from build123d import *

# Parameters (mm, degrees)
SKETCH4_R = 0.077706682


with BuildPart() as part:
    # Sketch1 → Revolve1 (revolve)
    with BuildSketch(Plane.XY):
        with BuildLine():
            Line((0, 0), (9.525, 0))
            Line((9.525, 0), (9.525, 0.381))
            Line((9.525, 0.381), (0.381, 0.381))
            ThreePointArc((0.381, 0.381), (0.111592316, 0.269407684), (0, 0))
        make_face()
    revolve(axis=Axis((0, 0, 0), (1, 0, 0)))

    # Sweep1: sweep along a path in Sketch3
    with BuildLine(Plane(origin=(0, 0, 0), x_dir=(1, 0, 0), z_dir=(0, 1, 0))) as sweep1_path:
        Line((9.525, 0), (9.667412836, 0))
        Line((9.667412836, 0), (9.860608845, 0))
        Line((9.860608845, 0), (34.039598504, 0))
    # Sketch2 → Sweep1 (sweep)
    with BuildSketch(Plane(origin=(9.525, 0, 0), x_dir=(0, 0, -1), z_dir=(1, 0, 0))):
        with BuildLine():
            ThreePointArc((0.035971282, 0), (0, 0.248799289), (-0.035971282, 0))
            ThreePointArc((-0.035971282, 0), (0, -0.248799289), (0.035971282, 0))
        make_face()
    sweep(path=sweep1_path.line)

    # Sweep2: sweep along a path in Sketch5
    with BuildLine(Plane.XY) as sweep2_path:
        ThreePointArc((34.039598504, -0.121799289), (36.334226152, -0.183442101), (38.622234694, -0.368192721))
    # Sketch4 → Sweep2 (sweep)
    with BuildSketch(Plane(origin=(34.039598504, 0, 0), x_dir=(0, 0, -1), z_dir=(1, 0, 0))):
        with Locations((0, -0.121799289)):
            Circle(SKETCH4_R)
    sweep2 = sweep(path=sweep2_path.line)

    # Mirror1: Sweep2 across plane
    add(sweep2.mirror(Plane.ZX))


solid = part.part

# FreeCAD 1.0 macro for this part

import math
import FreeCAD as App
import Part
import Sketcher
from FreeCAD import Vector
Q = App.Units.Quantity

doc = App.newDocument("Part")
params = doc.addObject("Spreadsheet::Sheet", "Params")
for row, (alias, value) in enumerate([
    ("sketch1_radius", "0.015 in"),
    ("sketch1_width", "0.36 in"),
    ("revolution_angle", "360 deg"),
    ("sketch2_radius", "0.005 in"),
], start=1):
    params.set(f"A{row}", alias)
    params.set(f"B{row}", "=" + value)
    params.setAlias(f"B{row}", alias)

body = doc.addObject("PartDesign::Body", "Body")

sketch1 = body.newObject("Sketcher::SketchObject", "Sketch")
sketch1.AttachmentSupport = (doc.getObject("XY_Plane"), [""])
sketch1.MapMode = "FlatFace"
sketch1.addGeometry([
    Part.LineSegment(Vector(0, 0, 0), Vector(9.525, 0, 0)),
    Part.LineSegment(Vector(9.525, 0, 0), Vector(9.525, 0.381, 0)),
    Part.LineSegment(Vector(9.525, 0.381, 0), Vector(0.381, 0.381, 0)),
    Part.ArcOfCircle(Part.Circle(Vector(0.381, 0, 0), Vector(0, 0, 1), 0.381), math.radians(90), math.radians(180)),
], False)
sketch1.addConstraint([
    Sketcher.Constraint("Coincident", 0, 2, 1, 1),
    Sketcher.Constraint("Coincident", 1, 2, 2, 1),
    Sketcher.Constraint("Tangent", 2, 2, 3, 1),
    Sketcher.Constraint("Coincident", 3, 2, 0, 1),
    Sketcher.Constraint("Horizontal", 0),
    Sketcher.Constraint("Vertical", 1),
    Sketcher.Constraint("Horizontal", 2),
    Sketcher.Constraint("Coincident", 3, 2, -1, 1),
    Sketcher.Constraint("PointOnObject", 3, 3, -1),
    Sketcher.Constraint("Radius", 3, Q("0.015 in")),
    Sketcher.Constraint("DistanceX", 2, 2, 2, 1, Q("0.36 in")),
])
sketch1.setExpression("Constraints[9]", "Params.sketch1_radius")
sketch1.setExpression("Constraints[10]", "Params.sketch1_width")
revolution = body.newObject("PartDesign::Revolution", "Revolution")
revolution.Profile = sketch1
revolution.ReferenceAxis = (sketch1, ["H_Axis"])
revolution.setExpression("Angle", "Params.revolution_angle")

sketch2 = body.newObject("Sketcher::SketchObject", "Sketch001")
sketch2.AttachmentSupport = (doc.getObject("YZ_Plane"), [""])
sketch2.MapMode = "FlatFace"
sketch2.AttachmentOffset = App.Placement(Vector(0, 0, 0.375 * 25.4), App.Rotation())
sketch2.addGeometry([
    Part.ArcOfCircle(Part.Circle(Vector(0.121799, 0, 0), Vector(0, 0, 1), 0.127), math.radians(-163.54642), math.radians(163.54642)),
    Part.ArcOfCircle(Part.Circle(Vector(-0.121799, 0, 0), Vector(0, 0, 1), 0.127), math.radians(16.45358), math.radians(343.54642)),
], False)
sketch2.addConstraint([
    Sketcher.Constraint("Coincident", 0, 1, 1, 2),
    Sketcher.Constraint("Coincident", 1, 1, 0, 2),
    Sketcher.Constraint("Equal", 0, 1),
    Sketcher.Constraint("Symmetric", 0, 3, 1, 3, -1, 1),
    Sketcher.Constraint("PointOnObject", 0, 3, -1),
    Sketcher.Constraint("Radius", 0, Q("0.005 in")),
    Sketcher.Constraint("DistanceX", -1, 1, 0, 3, Q("0.121799 mm")),
])
sketch2.setExpression("Constraints[5]", "Params.sketch2_radius")

sketch3 = body.newObject("Sketcher::SketchObject", "Sketch002")
sketch3.AttachmentSupport = (doc.getObject("XY_Plane"), [""])
sketch3.MapMode = "FlatFace"
sketch3.addGeometry(Part.LineSegment(Vector(9.525, 0, 0), Vector(34.039599, 0, 0)), False)
sketch3.addConstraint([
    Sketcher.Constraint("Horizontal", 0),
    Sketcher.Constraint("PointOnObject", 0, 1, -1),
    Sketcher.Constraint("DistanceX", -1, 1, 0, 1, Q("0.375 in")),
    Sketcher.Constraint("DistanceX", 0, 1, 0, 2, Q("24.514599 mm")),
])
doc.recompute()

additivepipe = body.newObject("PartDesign::AdditivePipe", "AdditivePipe")
additivepipe.Profile = sketch2
additivepipe.Spine = (sketch3, ["Edge1"])

sketch4 = body.newObject("Sketcher::SketchObject", "Sketch003")
sketch4.AttachmentSupport = (doc.getObject("YZ_Plane"), [""])
sketch4.MapMode = "FlatFace"
sketch4.AttachmentOffset = App.Placement(Vector(0, 0, 34.039599), App.Rotation())
sketch4.addGeometry(Part.Circle(Vector(-0.121799, 0, 0), Vector(0, 0, 1), 0.077707), False)
sketch4.addConstraint([
    Sketcher.Constraint("PointOnObject", 0, 3, -1),
    Sketcher.Constraint("Diameter", 0, Q("0.155413 mm")),
    Sketcher.Constraint("DistanceX", 0, 3, -1, 1, Q("0.121799 mm")),
])

sketch5 = body.newObject("Sketcher::SketchObject", "Sketch004")
sketch5.AttachmentSupport = (doc.getObject("XY_Plane"), [""])
sketch5.MapMode = "FlatFace"
sketch5.addGeometry(Part.ArcOfCircle(Part.Circle(Vector(34.039598, -42.860894, 0), Vector(0, 0, 1), 42.739094), math.radians(83.844712), math.radians(90)), False)
sketch5.addConstraint([
    Sketcher.Constraint("Radius", 0, Q("42.739094 mm")),
    Sketcher.Constraint("DistanceX", -1, 1, 0, 3, Q("34.039598 mm")),
    Sketcher.Constraint("DistanceX", -1, 1, 0, 2, Q("34.039599 mm")),
    Sketcher.Constraint("DistanceY", 0, 2, -1, 1, Q("0.121799 mm")),
    Sketcher.Constraint("DistanceY", 0, 3, 0, 1, Q("42.492701 mm")),
])
doc.recompute()

additivepipe2 = body.newObject("PartDesign::AdditivePipe", "AdditivePipe001")
additivepipe2.Profile = sketch4
additivepipe2.Spine = (sketch5, ["Edge1"])
doc.recompute()

mirrored = body.newObject("PartDesign::Mirrored", "Mirrored")
mirrored.Originals = [additivepipe2]
mirrored.MirrorPlane = (doc.getObject("XZ_Plane"), [""])
body.Tip = mirrored

doc.recompute()
